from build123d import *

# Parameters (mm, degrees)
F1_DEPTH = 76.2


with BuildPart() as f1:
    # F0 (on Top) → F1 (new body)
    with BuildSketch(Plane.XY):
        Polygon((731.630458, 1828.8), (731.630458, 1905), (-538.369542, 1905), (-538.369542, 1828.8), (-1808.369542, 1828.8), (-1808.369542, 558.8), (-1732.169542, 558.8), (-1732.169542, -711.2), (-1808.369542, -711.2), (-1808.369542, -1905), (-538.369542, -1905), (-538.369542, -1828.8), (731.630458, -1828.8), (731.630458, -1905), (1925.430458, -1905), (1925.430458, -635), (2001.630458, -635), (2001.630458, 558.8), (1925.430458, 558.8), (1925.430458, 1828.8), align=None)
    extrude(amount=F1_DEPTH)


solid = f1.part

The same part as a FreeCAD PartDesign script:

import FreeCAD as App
import Part
import Sketcher
Q = App.Units.Quantity


def add_polygon(sketch, points):
    """Adds a closed chain of lines whose ends are joined by coincident constraints."""
    first, n = sketch.GeometryCount, len(points)
    for a, b in zip(points, points[1:] + points[:1]):
        sketch.addGeometry(Part.LineSegment(App.Vector(*a, 0), App.Vector(*b, 0)), False)
    for i in range(n):
        sketch.addConstraint(Sketcher.Constraint("Coincident", first + i, 2, first + (i + 1) % n, 1))

doc = App.newDocument("Part")
body = doc.addObject("PartDesign::Body", "Body")

# Sketch on XY plane
sketch1 = doc.addObject("Sketcher::SketchObject", "Sketch")
body.addObject(sketch1)
sketch1.AttachmentSupport = (doc.XY_Plane, [""])
sketch1.MapMode = "FlatFace"
add_polygon(sketch1, [(732, 1829), (732, 1905), (-538, 1905), (-538, 1829), (-1808, 1829), (-1808, 559), (-1732, 559), (-1732, -711), (-1808, -711), (-1808, -1905), (-538, -1905), (-538, -1829), (732, -1829), (732, -1905), (1925, -1905), (1925, -635), (2002, -635), (2002, 559), (1925, 559), (1925, 1829)])  # lines 0-19
sketch1.addConstraint([
    Sketcher.Constraint("Vertical", 0),
    Sketcher.Constraint("Horizontal", 1),
    Sketcher.Constraint("Vertical", 2),
    Sketcher.Constraint("Horizontal", 3),
    Sketcher.Constraint("Vertical", 4),
    Sketcher.Constraint("Horizontal", 5),
    Sketcher.Constraint("Vertical", 6),
    Sketcher.Constraint("Horizontal", 7),
    Sketcher.Constraint("Vertical", 8),
    Sketcher.Constraint("Horizontal", 9),
    Sketcher.Constraint("Vertical", 10),
    Sketcher.Constraint("Horizontal", 11),
    Sketcher.Constraint("Vertical", 12),
    Sketcher.Constraint("Horizontal", 13),
    Sketcher.Constraint("Vertical", 14),
    Sketcher.Constraint("Horizontal", 15),
    Sketcher.Constraint("Vertical", 16),
    Sketcher.Constraint("Horizontal", 17),
    Sketcher.Constraint("Vertical", 18),
    Sketcher.Constraint("Horizontal", 19),
    Sketcher.Constraint("Symmetric", 1, 2, 9, 2, -1),
    Sketcher.Constraint("Symmetric", 0, 2, 12, 2, -1),
    Sketcher.Constraint("Horizontal", 5, 2, 16, 2),
    Sketcher.Constraint("Horizontal", 3, 2, 18, 2),
    Sketcher.Constraint("Vertical", 4, 2, 7, 2),
    Sketcher.Constraint("Vertical", 14, 2, 17, 2),
    Sketcher.Constraint("Equal", 1, 3),
    Sketcher.Constraint("Equal", 7, 15),
    Sketcher.Constraint("Equal", 17, 0),
    Sketcher.Constraint("Equal", 11, 4),
    Sketcher.Constraint("Equal", 4, 6),
    Sketcher.Constraint("Equal", 19, 8),
    Sketcher.Constraint("Equal", 2, 10),
    Sketcher.Constraint("Equal", 6, 14),
    Sketcher.Constraint("DistanceX", 1, 2, 1, 1, Q("50 in")),
    Sketcher.Constraint("DistanceX", 5, 1, 5, 2, Q("3 in")),
    Sketcher.Constraint("DistanceX", 13, 1, 13, 2, Q("47 in")),
    Sketcher.Constraint("DistanceX", -1, 1, 0, 2, 731.630458),
])
pad1 = doc.addObject("PartDesign::Pad", "Pad")
body.addObject(pad1)
pad1.Profile = sketch1
pad1.Length = Q("3 in")

doc.recompute()
